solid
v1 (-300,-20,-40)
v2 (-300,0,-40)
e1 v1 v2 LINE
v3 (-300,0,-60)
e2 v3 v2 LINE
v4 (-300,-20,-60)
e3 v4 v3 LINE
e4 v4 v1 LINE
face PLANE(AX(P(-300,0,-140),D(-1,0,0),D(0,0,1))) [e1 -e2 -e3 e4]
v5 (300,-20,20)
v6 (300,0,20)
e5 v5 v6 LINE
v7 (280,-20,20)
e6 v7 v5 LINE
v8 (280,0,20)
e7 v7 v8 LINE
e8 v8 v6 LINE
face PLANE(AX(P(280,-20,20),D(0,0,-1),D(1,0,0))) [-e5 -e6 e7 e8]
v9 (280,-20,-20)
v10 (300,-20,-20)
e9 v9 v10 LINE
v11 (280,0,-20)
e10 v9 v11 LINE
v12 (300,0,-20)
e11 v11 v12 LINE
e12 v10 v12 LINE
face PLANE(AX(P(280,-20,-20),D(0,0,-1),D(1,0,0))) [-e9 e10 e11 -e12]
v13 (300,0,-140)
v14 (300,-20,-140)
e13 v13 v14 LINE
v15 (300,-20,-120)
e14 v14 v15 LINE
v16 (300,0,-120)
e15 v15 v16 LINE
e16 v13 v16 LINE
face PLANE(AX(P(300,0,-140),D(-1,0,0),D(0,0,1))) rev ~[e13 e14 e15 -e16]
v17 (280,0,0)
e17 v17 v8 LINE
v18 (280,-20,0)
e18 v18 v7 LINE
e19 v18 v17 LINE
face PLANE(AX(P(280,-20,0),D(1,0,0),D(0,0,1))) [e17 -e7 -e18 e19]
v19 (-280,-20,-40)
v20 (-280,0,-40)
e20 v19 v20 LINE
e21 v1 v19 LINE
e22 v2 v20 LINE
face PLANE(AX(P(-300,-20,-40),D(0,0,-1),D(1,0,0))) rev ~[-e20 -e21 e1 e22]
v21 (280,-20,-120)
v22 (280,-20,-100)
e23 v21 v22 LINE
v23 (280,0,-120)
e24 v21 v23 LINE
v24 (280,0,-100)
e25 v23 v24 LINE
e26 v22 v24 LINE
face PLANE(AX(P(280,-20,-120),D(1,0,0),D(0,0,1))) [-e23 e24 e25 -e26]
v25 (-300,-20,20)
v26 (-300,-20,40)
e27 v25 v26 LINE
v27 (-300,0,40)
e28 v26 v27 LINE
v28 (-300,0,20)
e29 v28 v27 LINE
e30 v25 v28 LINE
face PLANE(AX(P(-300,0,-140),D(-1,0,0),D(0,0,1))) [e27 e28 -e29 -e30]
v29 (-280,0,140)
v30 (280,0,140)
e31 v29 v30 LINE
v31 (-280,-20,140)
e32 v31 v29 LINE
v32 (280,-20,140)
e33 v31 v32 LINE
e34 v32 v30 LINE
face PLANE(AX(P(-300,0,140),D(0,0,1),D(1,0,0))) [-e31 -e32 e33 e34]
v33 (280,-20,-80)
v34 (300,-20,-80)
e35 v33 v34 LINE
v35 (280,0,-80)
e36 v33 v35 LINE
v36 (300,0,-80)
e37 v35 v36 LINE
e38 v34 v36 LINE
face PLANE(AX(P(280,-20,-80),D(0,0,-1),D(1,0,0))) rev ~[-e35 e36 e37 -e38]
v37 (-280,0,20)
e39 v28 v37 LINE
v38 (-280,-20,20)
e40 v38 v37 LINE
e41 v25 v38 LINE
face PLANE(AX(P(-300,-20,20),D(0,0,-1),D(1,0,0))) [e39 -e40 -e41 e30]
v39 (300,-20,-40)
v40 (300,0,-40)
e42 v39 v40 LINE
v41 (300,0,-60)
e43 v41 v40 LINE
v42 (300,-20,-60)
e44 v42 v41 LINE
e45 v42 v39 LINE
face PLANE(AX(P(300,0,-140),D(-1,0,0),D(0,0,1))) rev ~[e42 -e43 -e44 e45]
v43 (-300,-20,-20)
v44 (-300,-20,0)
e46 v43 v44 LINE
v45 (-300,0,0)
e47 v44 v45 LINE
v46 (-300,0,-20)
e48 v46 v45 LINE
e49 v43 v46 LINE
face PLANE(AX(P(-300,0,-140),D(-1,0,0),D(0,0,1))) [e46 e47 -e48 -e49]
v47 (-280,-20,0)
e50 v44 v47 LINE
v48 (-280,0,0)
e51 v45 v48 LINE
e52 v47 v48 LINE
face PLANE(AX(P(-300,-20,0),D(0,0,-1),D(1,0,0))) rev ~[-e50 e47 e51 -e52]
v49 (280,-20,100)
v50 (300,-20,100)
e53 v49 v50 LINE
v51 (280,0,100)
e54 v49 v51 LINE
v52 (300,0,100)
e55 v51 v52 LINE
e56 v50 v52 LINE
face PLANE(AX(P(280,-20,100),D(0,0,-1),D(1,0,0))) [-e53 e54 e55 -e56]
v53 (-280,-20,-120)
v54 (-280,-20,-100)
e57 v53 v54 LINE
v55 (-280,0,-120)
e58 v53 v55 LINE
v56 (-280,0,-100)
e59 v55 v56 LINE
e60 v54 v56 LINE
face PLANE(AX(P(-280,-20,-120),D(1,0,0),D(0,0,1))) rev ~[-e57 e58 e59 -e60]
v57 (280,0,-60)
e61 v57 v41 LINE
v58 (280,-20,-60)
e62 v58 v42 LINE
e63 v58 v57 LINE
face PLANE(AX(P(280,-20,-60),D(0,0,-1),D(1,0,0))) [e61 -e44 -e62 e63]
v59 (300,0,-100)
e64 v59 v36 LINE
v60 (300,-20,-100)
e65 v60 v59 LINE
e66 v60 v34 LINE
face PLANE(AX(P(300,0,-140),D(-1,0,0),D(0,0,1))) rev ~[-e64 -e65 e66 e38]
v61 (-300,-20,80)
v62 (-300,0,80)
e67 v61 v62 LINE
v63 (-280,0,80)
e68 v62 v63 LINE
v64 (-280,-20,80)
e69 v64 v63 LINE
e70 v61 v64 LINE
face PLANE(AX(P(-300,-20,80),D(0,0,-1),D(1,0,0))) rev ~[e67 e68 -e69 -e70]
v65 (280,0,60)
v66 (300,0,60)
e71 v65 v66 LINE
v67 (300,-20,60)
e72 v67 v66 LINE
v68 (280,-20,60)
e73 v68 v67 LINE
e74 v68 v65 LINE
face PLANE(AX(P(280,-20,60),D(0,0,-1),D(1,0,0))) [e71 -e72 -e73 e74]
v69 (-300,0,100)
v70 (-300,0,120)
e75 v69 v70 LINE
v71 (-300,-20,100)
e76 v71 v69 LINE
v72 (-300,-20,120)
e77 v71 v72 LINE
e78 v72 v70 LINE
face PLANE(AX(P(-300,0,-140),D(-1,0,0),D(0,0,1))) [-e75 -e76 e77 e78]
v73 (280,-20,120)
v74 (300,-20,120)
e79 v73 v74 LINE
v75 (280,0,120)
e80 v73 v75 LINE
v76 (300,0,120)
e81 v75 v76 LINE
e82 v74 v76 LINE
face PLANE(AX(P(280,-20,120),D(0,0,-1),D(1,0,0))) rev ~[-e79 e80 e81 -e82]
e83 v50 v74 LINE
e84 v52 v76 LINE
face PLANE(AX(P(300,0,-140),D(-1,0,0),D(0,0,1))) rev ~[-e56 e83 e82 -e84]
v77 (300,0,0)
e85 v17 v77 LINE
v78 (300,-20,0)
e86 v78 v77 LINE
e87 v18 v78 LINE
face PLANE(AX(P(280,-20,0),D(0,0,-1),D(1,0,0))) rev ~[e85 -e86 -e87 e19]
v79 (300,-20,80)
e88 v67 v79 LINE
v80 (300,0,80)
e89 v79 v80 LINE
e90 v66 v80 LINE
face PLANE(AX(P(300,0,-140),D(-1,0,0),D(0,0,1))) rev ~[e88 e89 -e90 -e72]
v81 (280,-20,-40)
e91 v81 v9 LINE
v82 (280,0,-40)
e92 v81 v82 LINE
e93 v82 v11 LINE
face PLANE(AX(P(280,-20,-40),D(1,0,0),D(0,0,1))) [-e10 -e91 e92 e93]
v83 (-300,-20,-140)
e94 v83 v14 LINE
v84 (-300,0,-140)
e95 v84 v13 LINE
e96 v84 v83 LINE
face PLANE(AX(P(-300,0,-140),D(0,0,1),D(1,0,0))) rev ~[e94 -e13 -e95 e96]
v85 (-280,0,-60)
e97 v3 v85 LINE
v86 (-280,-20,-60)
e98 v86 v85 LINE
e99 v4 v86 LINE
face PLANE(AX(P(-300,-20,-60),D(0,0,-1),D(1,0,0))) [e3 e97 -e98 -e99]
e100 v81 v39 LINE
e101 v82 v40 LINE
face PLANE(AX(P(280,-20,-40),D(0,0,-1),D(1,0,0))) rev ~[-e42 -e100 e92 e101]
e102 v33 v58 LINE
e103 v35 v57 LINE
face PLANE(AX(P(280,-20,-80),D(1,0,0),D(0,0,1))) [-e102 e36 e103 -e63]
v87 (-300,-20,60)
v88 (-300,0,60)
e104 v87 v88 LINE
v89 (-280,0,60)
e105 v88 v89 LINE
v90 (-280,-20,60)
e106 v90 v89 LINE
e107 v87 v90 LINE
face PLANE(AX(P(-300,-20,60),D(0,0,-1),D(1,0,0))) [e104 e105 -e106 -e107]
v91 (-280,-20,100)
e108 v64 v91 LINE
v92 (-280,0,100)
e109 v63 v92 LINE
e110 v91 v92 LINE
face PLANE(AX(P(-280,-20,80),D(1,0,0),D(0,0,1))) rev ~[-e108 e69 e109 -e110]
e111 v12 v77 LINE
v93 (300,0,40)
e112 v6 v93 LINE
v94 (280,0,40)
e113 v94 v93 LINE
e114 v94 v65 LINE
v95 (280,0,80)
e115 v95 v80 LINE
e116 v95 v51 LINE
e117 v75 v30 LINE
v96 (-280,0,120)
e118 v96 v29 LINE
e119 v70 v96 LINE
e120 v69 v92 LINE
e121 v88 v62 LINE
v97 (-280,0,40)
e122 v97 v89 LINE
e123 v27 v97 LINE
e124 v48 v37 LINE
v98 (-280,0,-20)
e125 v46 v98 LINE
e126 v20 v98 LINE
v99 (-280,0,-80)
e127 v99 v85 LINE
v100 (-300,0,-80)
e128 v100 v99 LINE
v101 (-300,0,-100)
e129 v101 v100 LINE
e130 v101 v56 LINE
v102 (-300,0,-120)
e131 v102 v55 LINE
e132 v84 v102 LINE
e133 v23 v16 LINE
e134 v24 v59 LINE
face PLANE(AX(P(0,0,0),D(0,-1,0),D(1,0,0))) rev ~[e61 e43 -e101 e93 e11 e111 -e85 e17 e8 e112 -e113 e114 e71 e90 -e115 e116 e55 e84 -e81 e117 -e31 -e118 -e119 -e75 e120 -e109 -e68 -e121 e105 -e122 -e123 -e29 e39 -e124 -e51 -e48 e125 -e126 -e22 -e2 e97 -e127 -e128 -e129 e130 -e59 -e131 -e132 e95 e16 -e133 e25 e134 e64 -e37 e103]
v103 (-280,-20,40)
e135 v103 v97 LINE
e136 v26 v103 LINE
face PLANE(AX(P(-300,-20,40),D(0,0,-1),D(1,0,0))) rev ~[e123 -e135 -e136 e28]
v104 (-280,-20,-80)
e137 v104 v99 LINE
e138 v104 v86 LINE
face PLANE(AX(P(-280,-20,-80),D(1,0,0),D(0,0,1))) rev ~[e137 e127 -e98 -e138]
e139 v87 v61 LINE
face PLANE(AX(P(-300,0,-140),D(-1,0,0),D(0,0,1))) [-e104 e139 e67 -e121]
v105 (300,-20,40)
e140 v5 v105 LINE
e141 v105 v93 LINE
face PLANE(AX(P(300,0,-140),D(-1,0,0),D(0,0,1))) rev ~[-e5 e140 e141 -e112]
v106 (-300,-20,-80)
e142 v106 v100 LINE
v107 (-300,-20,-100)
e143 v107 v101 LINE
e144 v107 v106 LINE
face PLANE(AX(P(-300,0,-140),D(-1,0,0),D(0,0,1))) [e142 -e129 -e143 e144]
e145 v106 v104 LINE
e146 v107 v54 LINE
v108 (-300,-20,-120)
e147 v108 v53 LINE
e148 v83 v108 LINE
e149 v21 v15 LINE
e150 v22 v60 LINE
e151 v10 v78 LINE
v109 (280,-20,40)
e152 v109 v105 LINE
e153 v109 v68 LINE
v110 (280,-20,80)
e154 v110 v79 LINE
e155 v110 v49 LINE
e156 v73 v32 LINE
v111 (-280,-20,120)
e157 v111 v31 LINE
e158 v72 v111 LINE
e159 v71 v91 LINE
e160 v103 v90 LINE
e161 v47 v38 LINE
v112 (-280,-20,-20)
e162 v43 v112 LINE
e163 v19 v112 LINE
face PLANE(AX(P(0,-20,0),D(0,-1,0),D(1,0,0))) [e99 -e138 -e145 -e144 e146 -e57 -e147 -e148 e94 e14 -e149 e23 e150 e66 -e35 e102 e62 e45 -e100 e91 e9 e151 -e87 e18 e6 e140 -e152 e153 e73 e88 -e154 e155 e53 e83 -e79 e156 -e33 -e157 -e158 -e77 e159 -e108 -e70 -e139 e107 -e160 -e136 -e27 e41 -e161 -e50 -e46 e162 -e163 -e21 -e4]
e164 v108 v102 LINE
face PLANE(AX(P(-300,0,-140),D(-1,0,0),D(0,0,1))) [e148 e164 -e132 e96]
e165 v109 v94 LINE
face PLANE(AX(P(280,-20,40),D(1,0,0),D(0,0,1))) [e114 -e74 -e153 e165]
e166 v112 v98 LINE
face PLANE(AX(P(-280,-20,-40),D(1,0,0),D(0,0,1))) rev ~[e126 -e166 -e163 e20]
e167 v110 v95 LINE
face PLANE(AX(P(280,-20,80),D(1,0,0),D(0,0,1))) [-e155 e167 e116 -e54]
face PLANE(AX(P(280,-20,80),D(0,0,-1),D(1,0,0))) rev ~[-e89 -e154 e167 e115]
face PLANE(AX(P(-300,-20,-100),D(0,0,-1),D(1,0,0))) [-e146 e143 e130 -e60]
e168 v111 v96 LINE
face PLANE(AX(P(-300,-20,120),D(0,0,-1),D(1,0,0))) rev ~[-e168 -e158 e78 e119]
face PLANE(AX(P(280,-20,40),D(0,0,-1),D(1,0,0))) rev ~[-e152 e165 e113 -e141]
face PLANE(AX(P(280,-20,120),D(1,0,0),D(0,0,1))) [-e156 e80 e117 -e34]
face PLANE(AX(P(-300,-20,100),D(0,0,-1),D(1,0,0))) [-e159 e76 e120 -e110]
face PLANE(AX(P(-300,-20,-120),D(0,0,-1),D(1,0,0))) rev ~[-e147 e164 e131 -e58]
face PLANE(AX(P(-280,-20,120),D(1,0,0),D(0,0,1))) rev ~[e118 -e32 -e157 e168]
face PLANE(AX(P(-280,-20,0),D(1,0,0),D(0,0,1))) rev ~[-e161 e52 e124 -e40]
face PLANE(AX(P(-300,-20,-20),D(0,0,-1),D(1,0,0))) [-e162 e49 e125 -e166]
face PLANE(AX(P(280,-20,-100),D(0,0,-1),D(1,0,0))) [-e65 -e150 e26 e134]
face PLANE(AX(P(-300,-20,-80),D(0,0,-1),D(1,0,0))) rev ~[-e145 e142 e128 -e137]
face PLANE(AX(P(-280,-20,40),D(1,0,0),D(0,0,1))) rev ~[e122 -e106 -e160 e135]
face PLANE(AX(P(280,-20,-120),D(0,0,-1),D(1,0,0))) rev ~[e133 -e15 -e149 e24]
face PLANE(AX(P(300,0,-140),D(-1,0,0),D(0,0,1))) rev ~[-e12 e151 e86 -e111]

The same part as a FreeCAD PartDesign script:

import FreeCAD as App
import Part
import Sketcher
Q = App.Units.Quantity

doc = App.newDocument("Part")
body = doc.addObject("PartDesign::Body", "Body")

# Sketch on XZ plane
sketch1 = body.newObject("Sketcher::SketchObject", "Sketch")
sketch1.AttachmentSupport = (doc.getObject("XZ_Plane"), [""])
sketch1.MapMode = "FlatFace"
sketch1.addGeometry([
    Part.LineSegment(App.Vector(-300, 140, 0), App.Vector(-300, -140, 0)),
    Part.LineSegment(App.Vector(-300, -140, 0), App.Vector(300, -140, 0)),
    Part.LineSegment(App.Vector(300, -140, 0), App.Vector(300, 140, 0)),
    Part.LineSegment(App.Vector(300, 140, 0), App.Vector(-300, 140, 0)),
], False)
sketch1.addConstraint([
    Sketcher.Constraint("Coincident", 0, 2, 1, 1),
    Sketcher.Constraint("Coincident", 1, 2, 2, 1),
    Sketcher.Constraint("Coincident", 2, 2, 3, 1),
    Sketcher.Constraint("Coincident", 3, 2, 0, 1),
    Sketcher.Constraint("Vertical", 0),
    Sketcher.Constraint("Horizontal", 1),
    Sketcher.Constraint("Vertical", 2),
    Sketcher.Constraint("Horizontal", 3),
    Sketcher.Constraint("Symmetric", 0, 2, 2, 2, -1, 1),
    Sketcher.Constraint("DistanceX", 1, 1, 1, 2, Q("600 mm")),
    Sketcher.Constraint("DistanceY", 0, 2, 0, 1, Q("280 mm")),
])
pad1 = body.newObject("PartDesign::Pad", "Pad")
pad1.Profile = sketch1
pad1.Length = 20

# Sketch on XZ plane
sketch2 = body.newObject("Sketcher::SketchObject", "Sketch001")
sketch2.AttachmentSupport = (doc.getObject("XZ_Plane"), [""])
sketch2.MapMode = "FlatFace"
sketch2.AttachmentOffset = App.Placement(App.Vector(0, 0, 20), App.Rotation())
sketch2.addGeometry([
    Part.LineSegment(App.Vector(-300, -100, 0), App.Vector(-300, -120, 0)),  # 0
    Part.LineSegment(App.Vector(-300, -120, 0), App.Vector(-280, -120, 0)),  # 1
    Part.LineSegment(App.Vector(-280, -120, 0), App.Vector(-280, -100, 0)),  # 2
    Part.LineSegment(App.Vector(-280, -100, 0), App.Vector(-300, -100, 0)),  # 3
    Part.LineSegment(App.Vector(-300, -60, 0), App.Vector(-300, -80, 0)),  # 4
    Part.LineSegment(App.Vector(-300, -80, 0), App.Vector(-280, -80, 0)),  # 5
    Part.LineSegment(App.Vector(-280, -80, 0), App.Vector(-280, -60, 0)),  # 6
    Part.LineSegment(App.Vector(-280, -60, 0), App.Vector(-300, -60, 0)),  # 7
    Part.LineSegment(App.Vector(-300, -20, 0), App.Vector(-300, -40, 0)),  # 8
    Part.LineSegment(App.Vector(-300, -40, 0), App.Vector(-280, -40, 0)),  # 9
    Part.LineSegment(App.Vector(-280, -40, 0), App.Vector(-280, -20, 0)),  # 10
    Part.LineSegment(App.Vector(-280, -20, 0), App.Vector(-300, -20, 0)),  # 11
    Part.LineSegment(App.Vector(-300, 20, 0), App.Vector(-300, 0, 0)),  # 12
    Part.LineSegment(App.Vector(-300, 0, 0), App.Vector(-280, 0, 0)),  # 13
    Part.LineSegment(App.Vector(-280, 0, 0), App.Vector(-280, 20, 0)),  # 14
    Part.LineSegment(App.Vector(-280, 20, 0), App.Vector(-300, 20, 0)),  # 15
    Part.LineSegment(App.Vector(-300, 60, 0), App.Vector(-300, 40, 0)),  # 16
    Part.LineSegment(App.Vector(-300, 40, 0), App.Vector(-280, 40, 0)),  # 17
    Part.LineSegment(App.Vector(-280, 40, 0), App.Vector(-280, 60, 0)),  # 18
    Part.LineSegment(App.Vector(-280, 60, 0), App.Vector(-300, 60, 0)),  # 19
    Part.LineSegment(App.Vector(-300, 100, 0), App.Vector(-300, 80, 0)),  # 20
    Part.LineSegment(App.Vector(-300, 80, 0), App.Vector(-280, 80, 0)),  # 21
    Part.LineSegment(App.Vector(-280, 80, 0), App.Vector(-280, 100, 0)),  # 22
    Part.LineSegment(App.Vector(-280, 100, 0), App.Vector(-300, 100, 0)),  # 23
    Part.LineSegment(App.Vector(-300, 140, 0), App.Vector(-300, 120, 0)),  # 24
    Part.LineSegment(App.Vector(-300, 120, 0), App.Vector(-280, 120, 0)),  # 25
    Part.LineSegment(App.Vector(-280, 120, 0), App.Vector(-280, 140, 0)),  # 26
    Part.LineSegment(App.Vector(-280, 140, 0), App.Vector(-300, 140, 0)),  # 27
    Part.LineSegment(App.Vector(280, -100, 0), App.Vector(280, -120, 0)),  # 28
    Part.LineSegment(App.Vector(280, -120, 0), App.Vector(300, -120, 0)),  # 29
    Part.LineSegment(App.Vector(300, -120, 0), App.Vector(300, -100, 0)),  # 30
    Part.LineSegment(App.Vector(300, -100, 0), App.Vector(280, -100, 0)),  # 31
    Part.LineSegment(App.Vector(280, 60, 0), App.Vector(280, 40, 0)),  # 32
    Part.LineSegment(App.Vector(280, 40, 0), App.Vector(300, 40, 0)),  # 33
    Part.LineSegment(App.Vector(300, 40, 0), App.Vector(300, 60, 0)),  # 34
    Part.LineSegment(App.Vector(300, 60, 0), App.Vector(280, 60, 0)),  # 35
    Part.LineSegment(App.Vector(280, 100, 0), App.Vector(280, 80, 0)),  # 36
    Part.LineSegment(App.Vector(280, 80, 0), App.Vector(300, 80, 0)),  # 37
    Part.LineSegment(App.Vector(300, 80, 0), App.Vector(300, 100, 0)),  # 38
    Part.LineSegment(App.Vector(300, 100, 0), App.Vector(280, 100, 0)),  # 39
    Part.LineSegment(App.Vector(280, 140, 0), App.Vector(280, 120, 0)),  # 40
    Part.LineSegment(App.Vector(280, 120, 0), App.Vector(300, 120, 0)),  # 41
    Part.LineSegment(App.Vector(300, 120, 0), App.Vector(300, 140, 0)),  # 42
    Part.LineSegment(App.Vector(300, 140, 0), App.Vector(280, 140, 0)),  # 43
    Part.LineSegment(App.Vector(280, 20, 0), App.Vector(280, 0, 0)),  # 44
    Part.LineSegment(App.Vector(280, 0, 0), App.Vector(300, 0, 0)),  # 45
    Part.LineSegment(App.Vector(300, 0, 0), App.Vector(300, 20, 0)),  # 46
    Part.LineSegment(App.Vector(300, 20, 0), App.Vector(280, 20, 0)),  # 47
    Part.LineSegment(App.Vector(280, -60, 0), App.Vector(280, -80, 0)),  # 48
    Part.LineSegment(App.Vector(280, -80, 0), App.Vector(300, -80, 0)),  # 49
    Part.LineSegment(App.Vector(300, -80, 0), App.Vector(300, -60, 0)),  # 50
    Part.LineSegment(App.Vector(300, -60, 0), App.Vector(280, -60, 0)),  # 51
    Part.LineSegment(App.Vector(280, -20, 0), App.Vector(280, -40, 0)),  # 52
    Part.LineSegment(App.Vector(280, -40, 0), App.Vector(300, -40, 0)),  # 53
    Part.LineSegment(App.Vector(300, -40, 0), App.Vector(300, -20, 0)),  # 54
    Part.LineSegment(App.Vector(300, -20, 0), App.Vector(280, -20, 0)),  # 55
], False)
sketch2.addConstraint([
    Sketcher.Constraint("Coincident", 0, 2, 1, 1),
    Sketcher.Constraint("Coincident", 1, 2, 2, 1),
    Sketcher.Constraint("Coincident", 2, 2, 3, 1),
    Sketcher.Constraint("Coincident", 3, 2, 0, 1),
    Sketcher.Constraint("Coincident", 4, 2, 5, 1),
    Sketcher.Constraint("Coincident", 5, 2, 6, 1),
    Sketcher.Constraint("Coincident", 6, 2, 7, 1),
    Sketcher.Constraint("Coincident", 7, 2, 4, 1),
    Sketcher.Constraint("Coincident", 8, 2, 9, 1),
    Sketcher.Constraint("Coincident", 9, 2, 10, 1),
    Sketcher.Constraint("Coincident", 10, 2, 11, 1),
    Sketcher.Constraint("Coincident", 11, 2, 8, 1),
    Sketcher.Constraint("Coincident", 12, 2, 13, 1),
    Sketcher.Constraint("Coincident", 13, 2, 14, 1),
    Sketcher.Constraint("Coincident", 14, 2, 15, 1),
    Sketcher.Constraint("Coincident", 15, 2, 12, 1),
    Sketcher.Constraint("Coincident", 16, 2, 17, 1),
    Sketcher.Constraint("Coincident", 17, 2, 18, 1),
    Sketcher.Constraint("Coincident", 18, 2, 19, 1),
    Sketcher.Constraint("Coincident", 19, 2, 16, 1),
    Sketcher.Constraint("Coincident", 20, 2, 21, 1),
    Sketcher.Constraint("Coincident", 21, 2, 22, 1),
    Sketcher.Constraint("Coincident", 22, 2, 23, 1),
    Sketcher.Constraint("Coincident", 23, 2, 20, 1),
    Sketcher.Constraint("Coincident", 24, 2, 25, 1),
    Sketcher.Constraint("Coincident", 25, 2, 26, 1),
    Sketcher.Constraint("Coincident", 26, 2, 27, 1),
    Sketcher.Constraint("Coincident", 27, 2, 24, 1),
    Sketcher.Constraint("Coincident", 28, 2, 29, 1),
    Sketcher.Constraint("Coincident", 29, 2, 30, 1),
    Sketcher.Constraint("Coincident", 30, 2, 31, 1),
    Sketcher.Constraint("Coincident", 31, 2, 28, 1),
    Sketcher.Constraint("Coincident", 32, 2, 33, 1),
    Sketcher.Constraint("Coincident", 33, 2, 34, 1),
    Sketcher.Constraint("Coincident", 34, 2, 35, 1),
    Sketcher.Constraint("Coincident", 35, 2, 32, 1),
    Sketcher.Constraint("Coincident", 36, 2, 37, 1),
    Sketcher.Constraint("Coincident", 37, 2, 38, 1),
    Sketcher.Constraint("Coincident", 38, 2, 39, 1),
    Sketcher.Constraint("Coincident", 39, 2, 36, 1),
    Sketcher.Constraint("Coincident", 40, 2, 41, 1),
    Sketcher.Constraint("Coincident", 41, 2, 42, 1),
    Sketcher.Constraint("Coincident", 42, 2, 43, 1),
    Sketcher.Constraint("Coincident", 43, 2, 40, 1),
    Sketcher.Constraint("Coincident", 44, 2, 45, 1),
    Sketcher.Constraint("Coincident", 45, 2, 46, 1),
    Sketcher.Constraint("Coincident", 46, 2, 47, 1),
    Sketcher.Constraint("Coincident", 47, 2, 44, 1),
    Sketcher.Constraint("Coincident", 48, 2, 49, 1),
    Sketcher.Constraint("Coincident", 49, 2, 50, 1),
    Sketcher.Constraint("Coincident", 50, 2, 51, 1),
    Sketcher.Constraint("Coincident", 51, 2, 48, 1),
    Sketcher.Constraint("Coincident", 52, 2, 53, 1),
    Sketcher.Constraint("Coincident", 53, 2, 54, 1),
    Sketcher.Constraint("Coincident", 54, 2, 55, 1),
    Sketcher.Constraint("Coincident", 55, 2, 52, 1),
    Sketcher.Constraint("Vertical", 0),
    Sketcher.Constraint("Horizontal", 1),
    Sketcher.Constraint("Vertical", 2),
    Sketcher.Constraint("Horizontal", 3),
    Sketcher.Constraint("Vertical", 4),
    Sketcher.Constraint("Horizontal", 5),
    Sketcher.Constraint("Vertical", 6),
    Sketcher.Constraint("Horizontal", 7),
    Sketcher.Constraint("Vertical", 8),
    Sketcher.Constraint("Horizontal", 9),
    Sketcher.Constraint("Vertical", 10),
    Sketcher.Constraint("Horizontal", 11),
    Sketcher.Constraint("Vertical", 12),
    Sketcher.Constraint("Horizontal", 13),
    Sketcher.Constraint("Vertical", 14),
    Sketcher.Constraint("Horizontal", 15),
    Sketcher.Constraint("Vertical", 16),
    Sketcher.Constraint("Horizontal", 17),
    Sketcher.Constraint("Vertical", 18),
    Sketcher.Constraint("Horizontal", 19),
    Sketcher.Constraint("Vertical", 20),
    Sketcher.Constraint("Horizontal", 21),
    Sketcher.Constraint("Vertical", 22),
    Sketcher.Constraint("Horizontal", 23),
    Sketcher.Constraint("Vertical", 24),
    Sketcher.Constraint("Horizontal", 25),
    Sketcher.Constraint("Vertical", 26),
    Sketcher.Constraint("Horizontal", 27),
    Sketcher.Constraint("Vertical", 28),
    Sketcher.Constraint("Horizontal", 29),
    Sketcher.Constraint("Vertical", 30),
    Sketcher.Constraint("Horizontal", 31),
    Sketcher.Constraint("Vertical", 32),
    Sketcher.Constraint("Horizontal", 33),
    Sketcher.Constraint("Vertical", 34),
    Sketcher.Constraint("Horizontal", 35),
    Sketcher.Constraint("Vertical", 36),
    Sketcher.Constraint("Horizontal", 37),
    Sketcher.Constraint("Vertical", 38),
    Sketcher.Constraint("Horizontal", 39),
    Sketcher.Constraint("Vertical", 40),
    Sketcher.Constraint("Horizontal", 41),
    Sketcher.Constraint("Vertical", 42),
    Sketcher.Constraint("Horizontal", 43),
    Sketcher.Constraint("Vertical", 44),
    Sketcher.Constraint("Horizontal", 45),
    Sketcher.Constraint("Vertical", 46),
    Sketcher.Constraint("Horizontal", 47),
    Sketcher.Constraint("Vertical", 48),
    Sketcher.Constraint("Horizontal", 49),
    Sketcher.Constraint("Vertical", 50),
    Sketcher.Constraint("Horizontal", 51),
    Sketcher.Constraint("Vertical", 52),
    Sketcher.Constraint("Horizontal", 53),
    Sketcher.Constraint("Vertical", 54),
    Sketcher.Constraint("Horizontal", 55),
    Sketcher.Constraint("Symmetric", 25, 2, 28, 2, -1, 1),
    Sketcher.Constraint("Symmetric", 23, 2, 30, 2, -1, 1),
    Sketcher.Constraint("Symmetric", 9, 2, 32, 2, -1, 1),
    Sketcher.Constraint("Symmetric", 7, 2, 34, 2, -1, 1),
    Sketcher.Constraint("Symmetric", 5, 2, 36, 2, -1, 1),
    Sketcher.Constraint("Symmetric", 3, 2, 38, 2, -1, 1),
    Sketcher.Constraint("Symmetric", 1, 2, 40, 2, -1, 1),
    Sketcher.Constraint("Symmetric", 13, 2, 44, 2, -1, 1),
    Sketcher.Constraint("Symmetric", 11, 2, 46, 2, -1, 1),
    Sketcher.Constraint("Symmetric", 21, 2, 48, 2, -1, 1),
    Sketcher.Constraint("Symmetric", 19, 2, 50, 2, -1, 1),
    Sketcher.Constraint("Symmetric", 17, 2, 52, 2, -1, 1),
    Sketcher.Constraint("Symmetric", 15, 2, 54, 2, -1, 1),
    Sketcher.Constraint("Symmetric", 1, 2, 28, 2, -2),
    Sketcher.Constraint("Symmetric", 3, 2, 30, 2, -2),
    Sketcher.Constraint("Symmetric", 17, 2, 32, 2, -2),
    Sketcher.Constraint("Symmetric", 19, 2, 34, 2, -2),
    Sketcher.Constraint("Symmetric", 21, 2, 36, 2, -2),
    Sketcher.Constraint("Symmetric", 27, 2, 42, 2, -2),
    Sketcher.Constraint("Symmetric", 12, 2, 45, 2, -2),
    Sketcher.Constraint("Symmetric", 10, 2, 14, 2, -1),
    Sketcher.Constraint("Vertical", 3, 2, 4, 2),
    Sketcher.Constraint("Vertical", 2, 2, 5, 2),
    Sketcher.Constraint("Vertical", 7, 2, 8, 2),
    Sketcher.Constraint("Vertical", 6, 2, 9, 2),
    Sketcher.Constraint("Vertical", 23, 2, 24, 2),
    Sketcher.Constraint("Equal", 55, 0),
    Sketcher.Constraint("Equal", 2, 4),
    Sketcher.Constraint("Equal", 6, 8),
    Sketcher.Constraint("Equal", 10, 12),
    Sketcher.Constraint("Equal", 14, 16),
    Sketcher.Constraint("Equal", 18, 20),
    Sketcher.Constraint("Equal", 22, 24),
    Sketcher.Constraint("DistanceX", 1, 1, 1, 2, Q("20 mm")),
    Sketcher.Constraint("DistanceX", 0, 2, -1, 1, Q("300 mm")),
])
pocket1 = body.newObject("PartDesign::Pocket", "Pocket")
pocket1.Profile = sketch2
pocket1.Type = "ThroughAll"

doc.recompute()
